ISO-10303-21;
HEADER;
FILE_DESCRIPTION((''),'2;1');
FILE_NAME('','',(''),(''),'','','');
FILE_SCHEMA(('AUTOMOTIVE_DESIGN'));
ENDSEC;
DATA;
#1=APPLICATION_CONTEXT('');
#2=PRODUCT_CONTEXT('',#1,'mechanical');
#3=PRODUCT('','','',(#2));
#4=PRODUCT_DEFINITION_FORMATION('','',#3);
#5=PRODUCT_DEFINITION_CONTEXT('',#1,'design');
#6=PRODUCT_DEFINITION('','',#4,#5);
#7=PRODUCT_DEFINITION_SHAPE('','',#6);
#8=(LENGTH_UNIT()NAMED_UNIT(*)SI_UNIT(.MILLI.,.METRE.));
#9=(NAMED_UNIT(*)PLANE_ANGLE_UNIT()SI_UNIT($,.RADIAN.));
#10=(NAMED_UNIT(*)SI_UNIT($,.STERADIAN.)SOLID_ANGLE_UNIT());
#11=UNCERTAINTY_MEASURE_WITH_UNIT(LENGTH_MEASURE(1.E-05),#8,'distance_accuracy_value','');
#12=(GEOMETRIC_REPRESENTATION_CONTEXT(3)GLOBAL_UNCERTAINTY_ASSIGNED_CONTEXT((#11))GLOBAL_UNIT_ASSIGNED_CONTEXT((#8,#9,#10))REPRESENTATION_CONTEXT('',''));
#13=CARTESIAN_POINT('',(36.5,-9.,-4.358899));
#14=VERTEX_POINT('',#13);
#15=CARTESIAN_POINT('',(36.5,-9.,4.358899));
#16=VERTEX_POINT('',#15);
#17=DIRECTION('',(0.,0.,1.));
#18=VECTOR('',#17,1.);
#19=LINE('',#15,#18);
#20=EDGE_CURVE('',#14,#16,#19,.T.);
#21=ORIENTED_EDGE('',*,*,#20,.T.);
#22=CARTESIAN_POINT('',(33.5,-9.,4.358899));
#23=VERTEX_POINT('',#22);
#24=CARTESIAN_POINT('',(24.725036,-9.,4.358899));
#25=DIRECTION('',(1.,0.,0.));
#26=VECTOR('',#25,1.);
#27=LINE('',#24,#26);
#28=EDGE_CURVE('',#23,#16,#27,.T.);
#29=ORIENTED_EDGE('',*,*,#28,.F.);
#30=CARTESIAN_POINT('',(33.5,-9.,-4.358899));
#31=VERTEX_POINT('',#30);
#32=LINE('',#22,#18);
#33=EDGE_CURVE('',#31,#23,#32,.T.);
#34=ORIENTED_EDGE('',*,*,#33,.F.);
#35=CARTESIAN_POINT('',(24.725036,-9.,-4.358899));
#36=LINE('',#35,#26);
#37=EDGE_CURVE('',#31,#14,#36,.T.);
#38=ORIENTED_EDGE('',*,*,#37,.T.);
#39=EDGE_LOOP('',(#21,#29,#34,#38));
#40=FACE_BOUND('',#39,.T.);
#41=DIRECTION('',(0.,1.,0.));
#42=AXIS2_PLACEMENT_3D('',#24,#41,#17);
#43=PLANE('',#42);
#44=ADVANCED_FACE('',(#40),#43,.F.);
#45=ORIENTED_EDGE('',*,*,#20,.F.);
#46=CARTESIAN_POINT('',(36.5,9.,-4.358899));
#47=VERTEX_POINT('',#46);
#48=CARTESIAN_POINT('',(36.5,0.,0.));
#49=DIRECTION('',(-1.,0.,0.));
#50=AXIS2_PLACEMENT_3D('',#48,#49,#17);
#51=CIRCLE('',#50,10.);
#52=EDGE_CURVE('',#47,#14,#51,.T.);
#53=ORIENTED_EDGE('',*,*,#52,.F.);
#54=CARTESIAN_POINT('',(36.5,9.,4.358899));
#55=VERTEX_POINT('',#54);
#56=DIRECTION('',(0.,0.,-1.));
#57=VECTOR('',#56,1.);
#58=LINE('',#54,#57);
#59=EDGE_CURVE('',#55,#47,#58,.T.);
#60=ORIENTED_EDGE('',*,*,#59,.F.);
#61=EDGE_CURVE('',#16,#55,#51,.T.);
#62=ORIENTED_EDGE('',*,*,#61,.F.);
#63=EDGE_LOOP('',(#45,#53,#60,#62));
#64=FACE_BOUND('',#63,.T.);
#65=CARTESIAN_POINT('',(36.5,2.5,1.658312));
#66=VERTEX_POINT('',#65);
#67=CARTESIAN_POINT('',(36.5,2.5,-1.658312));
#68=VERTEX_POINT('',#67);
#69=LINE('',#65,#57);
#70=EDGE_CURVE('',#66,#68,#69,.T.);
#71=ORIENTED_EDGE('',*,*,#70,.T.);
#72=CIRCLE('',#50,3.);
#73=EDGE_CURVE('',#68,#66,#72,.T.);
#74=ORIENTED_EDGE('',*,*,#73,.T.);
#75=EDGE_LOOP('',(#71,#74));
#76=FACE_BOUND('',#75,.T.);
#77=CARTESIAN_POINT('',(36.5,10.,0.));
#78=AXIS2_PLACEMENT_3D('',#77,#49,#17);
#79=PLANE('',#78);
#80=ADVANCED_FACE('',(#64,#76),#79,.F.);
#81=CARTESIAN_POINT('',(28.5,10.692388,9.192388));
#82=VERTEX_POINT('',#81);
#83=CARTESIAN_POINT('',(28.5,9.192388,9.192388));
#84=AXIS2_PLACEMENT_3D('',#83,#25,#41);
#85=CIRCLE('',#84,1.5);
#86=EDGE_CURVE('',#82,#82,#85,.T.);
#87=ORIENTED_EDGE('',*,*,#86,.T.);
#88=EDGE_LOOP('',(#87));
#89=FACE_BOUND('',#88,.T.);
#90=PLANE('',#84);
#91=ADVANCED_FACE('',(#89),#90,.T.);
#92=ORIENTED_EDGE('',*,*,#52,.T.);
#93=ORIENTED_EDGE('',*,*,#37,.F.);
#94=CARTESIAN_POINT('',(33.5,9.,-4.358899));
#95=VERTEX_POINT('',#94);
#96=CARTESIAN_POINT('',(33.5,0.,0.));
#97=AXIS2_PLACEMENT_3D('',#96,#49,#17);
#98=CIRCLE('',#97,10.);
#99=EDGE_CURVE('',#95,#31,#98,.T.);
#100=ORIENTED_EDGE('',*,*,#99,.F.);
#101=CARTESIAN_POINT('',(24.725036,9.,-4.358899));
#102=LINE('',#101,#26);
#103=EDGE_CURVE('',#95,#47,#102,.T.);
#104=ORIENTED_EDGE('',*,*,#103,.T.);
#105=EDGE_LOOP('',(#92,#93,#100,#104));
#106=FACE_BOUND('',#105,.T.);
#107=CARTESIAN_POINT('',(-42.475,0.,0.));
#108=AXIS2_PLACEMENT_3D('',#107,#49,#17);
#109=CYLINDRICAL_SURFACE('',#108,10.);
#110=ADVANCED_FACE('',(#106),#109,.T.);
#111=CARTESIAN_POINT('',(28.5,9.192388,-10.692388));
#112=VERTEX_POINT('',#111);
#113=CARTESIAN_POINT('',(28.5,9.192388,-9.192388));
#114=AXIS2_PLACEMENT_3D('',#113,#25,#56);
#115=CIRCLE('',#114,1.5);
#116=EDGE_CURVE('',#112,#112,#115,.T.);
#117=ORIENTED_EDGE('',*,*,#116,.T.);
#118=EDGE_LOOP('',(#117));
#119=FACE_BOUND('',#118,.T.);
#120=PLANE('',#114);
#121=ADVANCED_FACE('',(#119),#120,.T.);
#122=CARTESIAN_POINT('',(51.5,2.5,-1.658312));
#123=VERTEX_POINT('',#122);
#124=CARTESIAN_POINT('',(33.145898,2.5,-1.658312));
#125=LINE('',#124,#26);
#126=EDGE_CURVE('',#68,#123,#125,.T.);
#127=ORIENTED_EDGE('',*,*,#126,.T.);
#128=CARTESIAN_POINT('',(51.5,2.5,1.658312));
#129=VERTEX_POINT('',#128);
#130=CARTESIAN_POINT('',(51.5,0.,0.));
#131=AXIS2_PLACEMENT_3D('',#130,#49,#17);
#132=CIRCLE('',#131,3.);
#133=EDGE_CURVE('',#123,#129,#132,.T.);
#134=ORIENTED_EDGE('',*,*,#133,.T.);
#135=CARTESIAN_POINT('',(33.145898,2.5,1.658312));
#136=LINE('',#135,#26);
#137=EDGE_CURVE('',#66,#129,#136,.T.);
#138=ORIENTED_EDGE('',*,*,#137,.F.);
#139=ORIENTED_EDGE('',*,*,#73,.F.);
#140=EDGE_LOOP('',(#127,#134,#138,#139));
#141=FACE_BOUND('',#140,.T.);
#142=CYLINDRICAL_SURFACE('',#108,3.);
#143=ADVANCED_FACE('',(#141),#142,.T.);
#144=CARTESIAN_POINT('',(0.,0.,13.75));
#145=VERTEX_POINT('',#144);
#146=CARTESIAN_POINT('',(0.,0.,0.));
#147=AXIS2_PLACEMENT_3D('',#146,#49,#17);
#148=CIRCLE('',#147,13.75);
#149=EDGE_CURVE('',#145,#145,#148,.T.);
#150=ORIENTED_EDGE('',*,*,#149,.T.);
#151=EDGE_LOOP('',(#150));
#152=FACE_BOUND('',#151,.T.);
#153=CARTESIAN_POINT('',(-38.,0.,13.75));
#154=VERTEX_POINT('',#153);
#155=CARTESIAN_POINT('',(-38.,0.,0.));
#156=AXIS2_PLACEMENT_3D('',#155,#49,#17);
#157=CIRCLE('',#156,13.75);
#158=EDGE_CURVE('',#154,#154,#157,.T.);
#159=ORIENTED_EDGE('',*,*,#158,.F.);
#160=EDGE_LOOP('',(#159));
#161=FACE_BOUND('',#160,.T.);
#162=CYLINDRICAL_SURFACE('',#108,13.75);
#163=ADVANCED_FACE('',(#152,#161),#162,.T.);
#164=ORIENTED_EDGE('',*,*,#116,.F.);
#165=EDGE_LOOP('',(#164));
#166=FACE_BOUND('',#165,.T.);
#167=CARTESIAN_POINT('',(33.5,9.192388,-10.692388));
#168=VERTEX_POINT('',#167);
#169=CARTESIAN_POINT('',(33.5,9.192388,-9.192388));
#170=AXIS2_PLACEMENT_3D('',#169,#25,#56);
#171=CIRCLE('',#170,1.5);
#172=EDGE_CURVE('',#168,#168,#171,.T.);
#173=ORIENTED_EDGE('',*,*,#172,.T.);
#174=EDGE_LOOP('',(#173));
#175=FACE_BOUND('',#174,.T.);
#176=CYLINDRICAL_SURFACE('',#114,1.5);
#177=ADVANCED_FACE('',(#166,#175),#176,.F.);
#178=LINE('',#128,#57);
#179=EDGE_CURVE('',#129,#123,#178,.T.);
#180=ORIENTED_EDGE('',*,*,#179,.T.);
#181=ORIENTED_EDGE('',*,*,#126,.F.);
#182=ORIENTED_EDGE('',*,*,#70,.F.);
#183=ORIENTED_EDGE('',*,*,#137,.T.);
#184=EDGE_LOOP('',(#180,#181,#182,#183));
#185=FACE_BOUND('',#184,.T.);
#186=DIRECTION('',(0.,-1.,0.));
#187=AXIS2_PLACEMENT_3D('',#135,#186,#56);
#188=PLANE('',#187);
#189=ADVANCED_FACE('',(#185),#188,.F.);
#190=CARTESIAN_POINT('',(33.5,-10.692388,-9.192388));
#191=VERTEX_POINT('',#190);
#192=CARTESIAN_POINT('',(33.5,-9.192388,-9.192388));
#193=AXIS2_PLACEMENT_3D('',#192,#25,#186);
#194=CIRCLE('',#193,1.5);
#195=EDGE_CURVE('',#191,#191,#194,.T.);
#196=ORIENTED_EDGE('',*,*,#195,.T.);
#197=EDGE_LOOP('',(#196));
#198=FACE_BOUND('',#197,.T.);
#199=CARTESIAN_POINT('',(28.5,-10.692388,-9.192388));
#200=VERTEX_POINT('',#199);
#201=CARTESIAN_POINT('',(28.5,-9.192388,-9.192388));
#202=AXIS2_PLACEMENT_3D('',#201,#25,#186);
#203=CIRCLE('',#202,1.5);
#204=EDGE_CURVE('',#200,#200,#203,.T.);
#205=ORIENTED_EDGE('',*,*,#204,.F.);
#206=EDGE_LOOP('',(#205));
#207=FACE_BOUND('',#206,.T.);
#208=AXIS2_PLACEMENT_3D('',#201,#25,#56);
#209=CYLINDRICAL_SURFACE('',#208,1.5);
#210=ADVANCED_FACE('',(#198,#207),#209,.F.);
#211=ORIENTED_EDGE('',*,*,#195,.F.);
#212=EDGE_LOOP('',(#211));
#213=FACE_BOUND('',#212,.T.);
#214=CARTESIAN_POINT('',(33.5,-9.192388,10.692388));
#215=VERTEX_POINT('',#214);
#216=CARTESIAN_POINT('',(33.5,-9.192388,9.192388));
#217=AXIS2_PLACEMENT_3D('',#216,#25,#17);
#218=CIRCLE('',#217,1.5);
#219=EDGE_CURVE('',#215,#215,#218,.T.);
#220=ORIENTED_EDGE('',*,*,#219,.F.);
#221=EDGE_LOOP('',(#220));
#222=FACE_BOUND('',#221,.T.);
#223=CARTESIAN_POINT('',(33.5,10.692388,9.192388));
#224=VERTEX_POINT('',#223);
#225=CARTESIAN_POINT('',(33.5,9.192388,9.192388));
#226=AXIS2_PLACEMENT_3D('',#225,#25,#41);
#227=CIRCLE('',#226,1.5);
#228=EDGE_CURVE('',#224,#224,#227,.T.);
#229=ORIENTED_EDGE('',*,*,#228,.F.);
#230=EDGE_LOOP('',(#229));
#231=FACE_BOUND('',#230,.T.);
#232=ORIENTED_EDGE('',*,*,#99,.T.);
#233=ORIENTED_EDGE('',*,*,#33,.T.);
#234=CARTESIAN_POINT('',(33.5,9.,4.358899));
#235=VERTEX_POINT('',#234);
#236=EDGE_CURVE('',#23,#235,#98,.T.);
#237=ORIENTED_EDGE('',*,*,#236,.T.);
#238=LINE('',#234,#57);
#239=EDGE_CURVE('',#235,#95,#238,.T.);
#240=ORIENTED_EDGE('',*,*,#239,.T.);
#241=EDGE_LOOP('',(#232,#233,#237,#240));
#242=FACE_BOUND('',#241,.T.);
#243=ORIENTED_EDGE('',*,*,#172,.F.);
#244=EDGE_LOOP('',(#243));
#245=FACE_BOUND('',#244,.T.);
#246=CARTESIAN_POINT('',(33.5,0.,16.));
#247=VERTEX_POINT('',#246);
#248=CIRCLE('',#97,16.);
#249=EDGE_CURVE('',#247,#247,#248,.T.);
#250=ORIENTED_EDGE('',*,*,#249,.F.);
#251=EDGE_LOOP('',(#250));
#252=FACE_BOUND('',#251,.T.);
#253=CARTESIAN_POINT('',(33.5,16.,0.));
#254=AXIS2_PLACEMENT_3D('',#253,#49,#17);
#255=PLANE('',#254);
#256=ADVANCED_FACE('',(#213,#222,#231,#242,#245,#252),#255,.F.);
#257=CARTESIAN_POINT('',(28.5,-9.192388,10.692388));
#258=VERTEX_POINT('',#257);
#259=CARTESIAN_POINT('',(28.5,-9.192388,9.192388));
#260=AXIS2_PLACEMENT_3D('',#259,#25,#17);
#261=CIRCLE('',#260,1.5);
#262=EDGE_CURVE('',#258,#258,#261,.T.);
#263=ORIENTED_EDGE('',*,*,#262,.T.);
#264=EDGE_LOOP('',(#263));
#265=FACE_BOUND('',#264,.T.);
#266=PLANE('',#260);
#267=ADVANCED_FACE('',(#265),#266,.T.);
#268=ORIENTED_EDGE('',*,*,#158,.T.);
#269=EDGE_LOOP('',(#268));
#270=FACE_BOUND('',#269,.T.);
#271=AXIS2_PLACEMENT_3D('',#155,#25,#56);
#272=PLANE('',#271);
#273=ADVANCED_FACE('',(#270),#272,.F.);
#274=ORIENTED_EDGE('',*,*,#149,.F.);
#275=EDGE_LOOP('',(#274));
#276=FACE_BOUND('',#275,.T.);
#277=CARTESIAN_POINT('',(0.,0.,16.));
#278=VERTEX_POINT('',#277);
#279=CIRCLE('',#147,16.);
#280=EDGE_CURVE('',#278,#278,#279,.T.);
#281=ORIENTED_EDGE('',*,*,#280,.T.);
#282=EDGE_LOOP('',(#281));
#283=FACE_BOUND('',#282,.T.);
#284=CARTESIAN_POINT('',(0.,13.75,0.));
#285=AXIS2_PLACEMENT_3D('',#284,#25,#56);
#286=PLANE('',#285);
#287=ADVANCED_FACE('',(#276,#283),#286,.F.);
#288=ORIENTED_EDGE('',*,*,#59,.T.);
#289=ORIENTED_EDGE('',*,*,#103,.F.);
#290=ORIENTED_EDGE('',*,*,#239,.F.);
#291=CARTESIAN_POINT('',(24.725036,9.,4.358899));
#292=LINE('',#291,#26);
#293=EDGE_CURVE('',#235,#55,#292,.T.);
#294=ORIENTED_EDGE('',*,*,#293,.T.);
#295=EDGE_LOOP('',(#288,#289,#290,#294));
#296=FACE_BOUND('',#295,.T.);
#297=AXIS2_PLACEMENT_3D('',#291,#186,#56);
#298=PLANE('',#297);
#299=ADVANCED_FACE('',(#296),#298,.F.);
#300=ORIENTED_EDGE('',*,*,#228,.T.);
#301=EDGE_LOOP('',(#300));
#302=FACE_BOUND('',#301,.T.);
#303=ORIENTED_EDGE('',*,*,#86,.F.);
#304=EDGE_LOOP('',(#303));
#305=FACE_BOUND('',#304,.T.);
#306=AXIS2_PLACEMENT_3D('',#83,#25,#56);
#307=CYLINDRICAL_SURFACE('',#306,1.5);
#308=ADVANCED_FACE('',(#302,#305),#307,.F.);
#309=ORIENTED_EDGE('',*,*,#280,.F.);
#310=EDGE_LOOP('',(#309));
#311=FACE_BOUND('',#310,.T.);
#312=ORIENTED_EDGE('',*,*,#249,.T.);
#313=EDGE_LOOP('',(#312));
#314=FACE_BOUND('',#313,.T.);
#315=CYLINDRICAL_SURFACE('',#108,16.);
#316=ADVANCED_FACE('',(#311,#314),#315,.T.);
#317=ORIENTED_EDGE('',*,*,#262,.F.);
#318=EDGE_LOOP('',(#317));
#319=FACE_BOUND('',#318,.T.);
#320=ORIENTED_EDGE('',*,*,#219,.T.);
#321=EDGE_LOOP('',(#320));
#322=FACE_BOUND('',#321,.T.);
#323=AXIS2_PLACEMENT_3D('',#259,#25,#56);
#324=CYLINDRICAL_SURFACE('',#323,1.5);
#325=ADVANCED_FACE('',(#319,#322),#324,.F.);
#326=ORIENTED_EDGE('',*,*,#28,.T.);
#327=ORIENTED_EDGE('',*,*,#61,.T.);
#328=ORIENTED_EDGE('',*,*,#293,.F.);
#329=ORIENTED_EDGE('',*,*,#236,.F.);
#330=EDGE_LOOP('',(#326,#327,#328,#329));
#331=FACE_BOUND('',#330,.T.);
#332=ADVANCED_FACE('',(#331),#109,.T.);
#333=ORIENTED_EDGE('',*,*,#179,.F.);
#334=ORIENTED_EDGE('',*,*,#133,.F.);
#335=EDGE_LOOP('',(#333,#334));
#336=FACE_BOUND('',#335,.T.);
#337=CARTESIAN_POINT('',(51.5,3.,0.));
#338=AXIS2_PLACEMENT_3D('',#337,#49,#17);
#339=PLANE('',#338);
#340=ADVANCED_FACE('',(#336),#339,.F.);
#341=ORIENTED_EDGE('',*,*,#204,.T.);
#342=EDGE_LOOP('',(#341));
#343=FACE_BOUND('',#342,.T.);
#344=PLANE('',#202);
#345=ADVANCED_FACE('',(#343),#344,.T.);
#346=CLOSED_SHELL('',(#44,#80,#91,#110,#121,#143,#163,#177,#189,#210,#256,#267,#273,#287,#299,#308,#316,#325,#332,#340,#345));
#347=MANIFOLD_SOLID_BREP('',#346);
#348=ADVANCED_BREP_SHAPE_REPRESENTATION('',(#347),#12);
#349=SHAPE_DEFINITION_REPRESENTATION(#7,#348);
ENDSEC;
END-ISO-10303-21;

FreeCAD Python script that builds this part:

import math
import FreeCAD as App
import Part
import Sketcher

V = App.Vector


def add_polygon(sketch, points):
    """Adds a closed chain of lines whose ends are joined by coincident constraints."""
    first, n = sketch.GeometryCount, len(points)
    for a, b in zip(points, points[1:] + points[:1]):
        sketch.addGeometry(Part.LineSegment(App.Vector(*a, 0), App.Vector(*b, 0)), False)
    for i in range(n):
        sketch.addConstraint(Sketcher.Constraint("Coincident", first + i, 2, first + (i + 1) % n, 1))

doc = App.newDocument("Part")
params = doc.addObject("Spreadsheet::Sheet", "Params")
for row, (alias, value) in enumerate([
    ("sketch1_width", "38 mm"),
    ("sketch1_width2", "15 mm"),
    ("sketch1_width3", "3 mm"),
    ("sketch1_height", "7 mm"),
    ("sketch1_height2", "6 mm"),
    ("revolution_angle", "360 deg"),
    ("sketch2_radius", "10 mm"),
    ("pocket1_length", "3 mm"),
    ("sketch3_radius", "3 mm"),
    ("pocket2_length", "15 mm"),
    ("sketch4_diameter", "3 mm"),
    ("pocket3_length", "5 mm"),
], start=1):
    params.set(f"A{row}", alias)
    params.set(f"B{row}", "=" + value)
    params.setAlias(f"B{row}", alias)

body = doc.addObject("PartDesign::Body", "Body")

# Sketch on XY plane
sketch1 = body.newObject("Sketcher::SketchObject", "Sketch")
sketch1.AttachmentSupport = (doc.getObject("XY_Plane"), [""])
sketch1.MapMode = "FlatFace"
add_polygon(sketch1, [(0, 13.8), (-38, 13.8), (-38, 0), (51.5, 0), (51.5, 3), (36.5, 3), (36.5, 10), (33.5, 10), (33.5, 16), (0, 16)])  # lines 0-9
sketch1.addConstraint(Sketcher.Constraint("Horizontal", 0))
sketch1.addConstraint(Sketcher.Constraint("Vertical", 1))
sketch1.addConstraint(Sketcher.Constraint("Horizontal", 2))
sketch1.addConstraint(Sketcher.Constraint("Vertical", 3))
sketch1.addConstraint(Sketcher.Constraint("Horizontal", 4))
sketch1.addConstraint(Sketcher.Constraint("Vertical", 5))
sketch1.addConstraint(Sketcher.Constraint("Horizontal", 6))
sketch1.addConstraint(Sketcher.Constraint("Vertical", 7))
sketch1.addConstraint(Sketcher.Constraint("Horizontal", 8))
sketch1.addConstraint(Sketcher.Constraint("Vertical", 9))
sketch1.addConstraint(Sketcher.Constraint("PointOnObject", 1, 2, -1))
sketch1.addConstraint(Sketcher.Constraint("PointOnObject", 8, 2, -2))
sketch1.addConstraint(Sketcher.Constraint("Equal", 6, 3))
sketch1.addConstraint(Sketcher.Constraint("DistanceX", 0, 2, 0, 1, 38.0))
sketch1.addConstraint(Sketcher.Constraint("DistanceX", 4, 2, 4, 1, 15.0))
sketch1.addConstraint(Sketcher.Constraint("DistanceX", 6, 2, 6, 1, 3.0))
sketch1.addConstraint(Sketcher.Constraint("DistanceY", 5, 1, 5, 2, 7.0))
sketch1.addConstraint(Sketcher.Constraint("DistanceY", 7, 1, 7, 2, 6.0))
sketch1.addConstraint(Sketcher.Constraint("DistanceX", 2, 1, 2, 2, 89.5))
sketch1.addConstraint(Sketcher.Constraint("DistanceY", 1, 2, 1, 1, 13.75))
sketch1.setExpression("Constraints[23]", "Params.sketch1_width")
sketch1.setExpression("Constraints[24]", "Params.sketch1_width2")
sketch1.setExpression("Constraints[25]", "Params.sketch1_width3")
sketch1.setExpression("Constraints[26]", "Params.sketch1_height")
sketch1.setExpression("Constraints[27]", "Params.sketch1_height2")
revolution = body.newObject("PartDesign::Revolution", "Revolution")
revolution.Profile = sketch1
revolution.ReferenceAxis = (sketch1, ["H_Axis"])
revolution.setExpression("Angle", "Params.revolution_angle")

# Sketch on YZ plane
sketch2 = body.newObject("Sketcher::SketchObject", "Sketch001")
sketch2.AttachmentSupport = (doc.getObject("YZ_Plane"), [""])
sketch2.MapMode = "FlatFace"
sketch2.AttachmentOffset = App.Placement(V(0, 0, 36.5), App.Rotation())
sketch2.addGeometry(Part.LineSegment(V(9, 4, 0), V(9, -4, 0)), False)
sketch2.addGeometry(Part.ArcOfCircle(Part.Circle(V(0, 0, 0), V(0, 0, 1), 10), math.radians(-26), math.radians(26)), False)
sketch2.addGeometry(Part.LineSegment(V(-9, -4, 0), V(-9, 4, 0)), False)
sketch2.addGeometry(Part.ArcOfCircle(Part.Circle(V(0, 0, 0), V(0, 0, 1), 10), math.radians(154), math.radians(206)), False)
sketch2.addConstraint(Sketcher.Constraint("Coincident", 0, 1, 1, 2))
sketch2.addConstraint(Sketcher.Constraint("Coincident", 1, 1, 0, 2))
sketch2.addConstraint(Sketcher.Constraint("Coincident", 2, 1, 3, 2))
sketch2.addConstraint(Sketcher.Constraint("Coincident", 3, 1, 2, 2))
sketch2.addConstraint(Sketcher.Constraint("Vertical", 0))
sketch2.addConstraint(Sketcher.Constraint("Vertical", 2))
sketch2.addConstraint(Sketcher.Constraint("Coincident", 1, 3, -1, 1))
sketch2.addConstraint(Sketcher.Constraint("Coincident", 3, 3, -1, 1))
sketch2.addConstraint(Sketcher.Constraint("Equal", 1, 3))
sketch2.addConstraint(Sketcher.Constraint("Horizontal", 1, 1, 2, 1))
sketch2.addConstraint(Sketcher.Constraint("Radius", 1, 10.0))
sketch2.addConstraint(Sketcher.Constraint("DistanceX", -1, 1, 0, 1, 9.0))
sketch2.setExpression("Constraints[10]", "Params.sketch2_radius")
pocket1 = body.newObject("PartDesign::Pocket", "Pocket")
pocket1.Profile = sketch2
pocket1.setExpression("Length", "Params.pocket1_length")

# Sketch on YZ plane
sketch3 = body.newObject("Sketcher::SketchObject", "Sketch002")
sketch3.AttachmentSupport = (doc.getObject("YZ_Plane"), [""])
sketch3.MapMode = "FlatFace"
sketch3.AttachmentOffset = App.Placement(V(0, 0, 51.5), App.Rotation())
sketch3.addGeometry(Part.LineSegment(V(2.5, 1.7, 0), V(2.5, -1.7, 0)), False)
sketch3.addGeometry(Part.ArcOfCircle(Part.Circle(V(0, 0, 0), V(0, 0, 1), 3), math.radians(-34), math.radians(34)), False)
sketch3.addConstraint(Sketcher.Constraint("Coincident", 0, 1, 1, 2))
sketch3.addConstraint(Sketcher.Constraint("Coincident", 1, 1, 0, 2))
sketch3.addConstraint(Sketcher.Constraint("Vertical", 0))
sketch3.addConstraint(Sketcher.Constraint("Coincident", 1, 3, -1, 1))
sketch3.addConstraint(Sketcher.Constraint("Radius", 1, 3.0))
sketch3.addConstraint(Sketcher.Constraint("DistanceX", -1, 1, 0, 1, 2.5))
sketch3.setExpression("Constraints[4]", "Params.sketch3_radius")
pocket2 = body.newObject("PartDesign::Pocket", "Pocket001")
pocket2.Profile = sketch3
pocket2.setExpression("Length", "Params.pocket2_length")

# Sketch on YZ plane
sketch4 = body.newObject("Sketcher::SketchObject", "Sketch003")
sketch4.AttachmentSupport = (doc.getObject("YZ_Plane"), [""])
sketch4.MapMode = "FlatFace"
sketch4.AttachmentOffset = App.Placement(V(0, 0, 33.5), App.Rotation())
sketch4.addGeometry(Part.Circle(V(9.2, -9.2, 0), V(0, 0, 1), 1.5), False)
sketch4.addConstraint(Sketcher.Constraint("Diameter", 0, 3.0))
sketch4.addConstraint(Sketcher.Constraint("DistanceX", -1, 1, 0, 3, 9.192388))
sketch4.addConstraint(Sketcher.Constraint("DistanceY", 0, 3, -1, 1, 9.192388))
sketch4.setExpression("Constraints[0]", "Params.sketch4_diameter")
pocket3 = body.newObject("PartDesign::Pocket", "Pocket002")
pocket3.Profile = sketch4
pocket3.setExpression("Length", "Params.pocket3_length")
doc.recompute()

polarpattern = body.newObject("PartDesign::PolarPattern", "PolarPattern")
polarpattern.Originals = [pocket3]
polarpattern.Axis = (doc.getObject("X_Axis"), [""])
polarpattern.Angle = 360
polarpattern.Occurrences = 4
body.Tip = polarpattern

doc.recompute()
